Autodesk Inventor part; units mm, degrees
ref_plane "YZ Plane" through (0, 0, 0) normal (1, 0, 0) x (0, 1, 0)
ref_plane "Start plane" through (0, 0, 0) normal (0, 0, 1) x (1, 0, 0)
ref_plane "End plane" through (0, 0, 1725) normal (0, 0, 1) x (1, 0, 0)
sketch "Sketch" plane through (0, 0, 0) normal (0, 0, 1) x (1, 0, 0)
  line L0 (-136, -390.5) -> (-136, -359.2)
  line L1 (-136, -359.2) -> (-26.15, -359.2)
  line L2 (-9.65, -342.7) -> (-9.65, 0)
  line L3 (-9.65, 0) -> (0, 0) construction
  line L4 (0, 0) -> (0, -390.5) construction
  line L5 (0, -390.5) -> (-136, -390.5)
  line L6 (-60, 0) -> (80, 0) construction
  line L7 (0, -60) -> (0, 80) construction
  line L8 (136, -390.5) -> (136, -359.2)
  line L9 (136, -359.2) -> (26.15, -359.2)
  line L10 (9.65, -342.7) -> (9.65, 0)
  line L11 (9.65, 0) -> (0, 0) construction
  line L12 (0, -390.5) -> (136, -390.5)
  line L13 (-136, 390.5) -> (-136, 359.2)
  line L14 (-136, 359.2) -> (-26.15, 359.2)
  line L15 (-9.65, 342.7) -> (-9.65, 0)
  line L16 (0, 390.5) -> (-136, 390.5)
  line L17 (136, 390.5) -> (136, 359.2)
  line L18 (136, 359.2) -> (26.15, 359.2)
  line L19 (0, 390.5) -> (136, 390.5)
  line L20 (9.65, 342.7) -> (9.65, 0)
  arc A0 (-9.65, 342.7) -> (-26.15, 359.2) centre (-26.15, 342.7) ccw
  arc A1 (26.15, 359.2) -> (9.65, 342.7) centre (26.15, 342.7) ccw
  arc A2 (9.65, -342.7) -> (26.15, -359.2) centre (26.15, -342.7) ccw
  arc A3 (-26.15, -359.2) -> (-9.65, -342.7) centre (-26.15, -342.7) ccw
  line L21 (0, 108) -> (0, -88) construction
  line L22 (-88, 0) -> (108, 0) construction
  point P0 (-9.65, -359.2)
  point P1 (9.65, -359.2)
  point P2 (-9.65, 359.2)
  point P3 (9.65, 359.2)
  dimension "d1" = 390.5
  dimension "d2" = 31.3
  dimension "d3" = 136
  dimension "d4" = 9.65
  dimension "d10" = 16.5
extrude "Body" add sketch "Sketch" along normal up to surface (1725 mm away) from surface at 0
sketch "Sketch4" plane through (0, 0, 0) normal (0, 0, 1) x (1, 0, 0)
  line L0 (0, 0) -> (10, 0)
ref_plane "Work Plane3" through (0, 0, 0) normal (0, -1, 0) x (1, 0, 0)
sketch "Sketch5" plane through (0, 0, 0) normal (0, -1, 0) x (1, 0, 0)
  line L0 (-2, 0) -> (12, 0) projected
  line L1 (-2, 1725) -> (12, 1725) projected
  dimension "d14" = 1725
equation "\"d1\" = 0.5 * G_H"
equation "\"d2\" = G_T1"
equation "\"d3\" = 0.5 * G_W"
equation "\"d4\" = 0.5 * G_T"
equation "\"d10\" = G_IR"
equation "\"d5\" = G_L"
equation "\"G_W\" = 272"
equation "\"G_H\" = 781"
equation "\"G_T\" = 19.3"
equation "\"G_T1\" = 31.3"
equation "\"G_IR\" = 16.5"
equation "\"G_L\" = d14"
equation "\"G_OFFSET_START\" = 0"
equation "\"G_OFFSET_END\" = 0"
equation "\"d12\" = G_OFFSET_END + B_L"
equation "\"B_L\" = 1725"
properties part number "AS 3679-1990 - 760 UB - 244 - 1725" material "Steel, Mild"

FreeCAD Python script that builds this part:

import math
import FreeCAD as App
import Part
import Sketcher
from FreeCAD import Vector
Q = App.Units.Quantity

doc = App.newDocument("Part")
params = doc.addObject("Spreadsheet::Sheet", "Params")
for row, (alias, value) in enumerate([
    ("sketch1_radius", "16.5 mm"),
    ("sketch1_height", "31.3 mm"),
    ("pad1_length", "1725 mm"),
], start=1):
    params.set(f"A{row}", alias)
    params.set(f"B{row}", "=" + value)
    params.setAlias(f"B{row}", alias)

body = doc.addObject("PartDesign::Body", "Body")

sketch1 = doc.addObject("Sketcher::SketchObject", "Sketch")
body.addObject(sketch1)
sketch1.AttachmentSupport = (doc.XY_Plane, [""])
sketch1.MapMode = "FlatFace"
sketch1.addGeometry(Part.LineSegment(Vector(-136, -359, 0), Vector(-136, -390, 0)), False)
sketch1.addGeometry(Part.LineSegment(Vector(-136, -390, 0), Vector(136, -390, 0)), False)
sketch1.addGeometry(Part.LineSegment(Vector(136, -390, 0), Vector(136, -359, 0)), False)
sketch1.addGeometry(Part.LineSegment(Vector(136, -359, 0), Vector(26, -359, 0)), False)
sketch1.addGeometry(Part.ArcOfCircle(Part.Circle(Vector(26, -343, 0), Vector(0, 0, 1), 16), math.radians(180), math.radians(270)), False)
sketch1.addGeometry(Part.LineSegment(Vector(10, -343, 0), Vector(10, 343, 0)), False)
sketch1.addGeometry(Part.ArcOfCircle(Part.Circle(Vector(26, 343, 0), Vector(0, 0, 1), 16), math.radians(90), math.radians(180)), False)
sketch1.addGeometry(Part.LineSegment(Vector(26, 359, 0), Vector(136, 359, 0)), False)
sketch1.addGeometry(Part.LineSegment(Vector(136, 359, 0), Vector(136, 390, 0)), False)
sketch1.addGeometry(Part.LineSegment(Vector(136, 390, 0), Vector(-136, 390, 0)), False)
sketch1.addGeometry(Part.LineSegment(Vector(-136, 390, 0), Vector(-136, 359, 0)), False)
sketch1.addGeometry(Part.LineSegment(Vector(-136, 359, 0), Vector(-26, 359, 0)), False)
sketch1.addGeometry(Part.ArcOfCircle(Part.Circle(Vector(-26, 343, 0), Vector(0, 0, 1), 16), math.radians(0), math.radians(90)), False)
sketch1.addGeometry(Part.LineSegment(Vector(-10, 343, 0), Vector(-10, -343, 0)), False)
sketch1.addGeometry(Part.ArcOfCircle(Part.Circle(Vector(-26, -343, 0), Vector(0, 0, 1), 16), math.radians(-90), math.radians(0)), False)
sketch1.addGeometry(Part.LineSegment(Vector(-26, -359, 0), Vector(-136, -359, 0)), False)
sketch1.addConstraint(Sketcher.Constraint("Coincident", 0, 2, 1, 1))
sketch1.addConstraint(Sketcher.Constraint("Coincident", 1, 2, 2, 1))
sketch1.addConstraint(Sketcher.Constraint("Coincident", 2, 2, 3, 1))
sketch1.addConstraint(Sketcher.Constraint("Tangent", 3, 2, 4, 2))
sketch1.addConstraint(Sketcher.Constraint("Tangent", 4, 1, 5, 1))
sketch1.addConstraint(Sketcher.Constraint("Tangent", 5, 2, 6, 2))
sketch1.addConstraint(Sketcher.Constraint("Tangent", 6, 1, 7, 1))
sketch1.addConstraint(Sketcher.Constraint("Coincident", 7, 2, 8, 1))
sketch1.addConstraint(Sketcher.Constraint("Coincident", 8, 2, 9, 1))
sketch1.addConstraint(Sketcher.Constraint("Coincident", 9, 2, 10, 1))
sketch1.addConstraint(Sketcher.Constraint("Coincident", 10, 2, 11, 1))
sketch1.addConstraint(Sketcher.Constraint("Tangent", 11, 2, 12, 2))
sketch1.addConstraint(Sketcher.Constraint("Tangent", 12, 1, 13, 1))
sketch1.addConstraint(Sketcher.Constraint("Tangent", 13, 2, 14, 2))
sketch1.addConstraint(Sketcher.Constraint("Tangent", 14, 1, 15, 1))
sketch1.addConstraint(Sketcher.Constraint("Coincident", 15, 2, 0, 1))
sketch1.addConstraint(Sketcher.Constraint("Vertical", 0))
sketch1.addConstraint(Sketcher.Constraint("Horizontal", 1))
sketch1.addConstraint(Sketcher.Constraint("Vertical", 2))
sketch1.addConstraint(Sketcher.Constraint("Horizontal", 3))
sketch1.addConstraint(Sketcher.Constraint("Vertical", 5))
sketch1.addConstraint(Sketcher.Constraint("Horizontal", 7))
sketch1.addConstraint(Sketcher.Constraint("Vertical", 8))
sketch1.addConstraint(Sketcher.Constraint("Horizontal", 9))
sketch1.addConstraint(Sketcher.Constraint("Vertical", 10))
sketch1.addConstraint(Sketcher.Constraint("Horizontal", 11))
sketch1.addConstraint(Sketcher.Constraint("Vertical", 13))
sketch1.addConstraint(Sketcher.Constraint("Horizontal", 15))
sketch1.addConstraint(Sketcher.Constraint("Equal", 4, 6))
sketch1.addConstraint(Sketcher.Constraint("Equal", 6, 12))
sketch1.addConstraint(Sketcher.Constraint("Equal", 12, 14))
sketch1.addConstraint(Sketcher.Constraint("Symmetric", 4, 3, 12, 3, -1, 1))
sketch1.addConstraint(Sketcher.Constraint("Symmetric", 0, 2, 8, 2, -1, 1))
sketch1.addConstraint(Sketcher.Constraint("Symmetric", 7, 2, 10, 2, -2))
sketch1.addConstraint(Sketcher.Constraint("Symmetric", 2, 2, 15, 2, -2))
sketch1.addConstraint(Sketcher.Constraint("Radius", 4, Q("16.5 mm")))
sketch1.addConstraint(Sketcher.Constraint("DistanceY", 0, 2, 0, 1, Q("31.3 mm")))
sketch1.addConstraint(Sketcher.Constraint("DistanceX", 0, 2, -1, 1, Q("136 mm")))
sketch1.addConstraint(Sketcher.Constraint("DistanceY", 0, 2, -1, 1, Q("390.5 mm")))
sketch1.addConstraint(Sketcher.Constraint("DistanceX", -1, 1, 4, 1, Q("9.65 mm")))
sketch1.setExpression("Constraints[35]", "Params.sketch1_radius")
sketch1.setExpression("Constraints[36]", "Params.sketch1_height")
pad1 = doc.addObject("PartDesign::Pad", "Pad")
body.addObject(pad1)
pad1.Profile = sketch1
pad1.setExpression("Length", "Params.pad1_length")

doc.recompute()
